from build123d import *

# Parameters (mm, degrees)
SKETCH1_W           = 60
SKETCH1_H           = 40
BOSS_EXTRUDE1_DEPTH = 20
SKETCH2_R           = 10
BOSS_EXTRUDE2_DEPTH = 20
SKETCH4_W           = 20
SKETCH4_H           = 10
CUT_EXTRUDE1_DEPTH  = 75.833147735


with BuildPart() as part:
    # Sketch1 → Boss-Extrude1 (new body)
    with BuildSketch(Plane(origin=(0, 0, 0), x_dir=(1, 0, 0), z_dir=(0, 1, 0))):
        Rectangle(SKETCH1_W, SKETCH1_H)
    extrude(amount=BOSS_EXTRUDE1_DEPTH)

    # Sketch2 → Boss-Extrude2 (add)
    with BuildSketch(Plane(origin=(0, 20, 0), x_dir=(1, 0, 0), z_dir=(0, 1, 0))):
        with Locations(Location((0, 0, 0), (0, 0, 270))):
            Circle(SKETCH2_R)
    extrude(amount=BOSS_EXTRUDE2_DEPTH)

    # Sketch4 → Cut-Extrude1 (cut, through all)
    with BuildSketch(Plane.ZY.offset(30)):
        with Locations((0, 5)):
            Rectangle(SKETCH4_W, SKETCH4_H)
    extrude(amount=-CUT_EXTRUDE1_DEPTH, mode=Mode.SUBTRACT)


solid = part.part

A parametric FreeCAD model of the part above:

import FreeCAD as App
import Part
import Sketcher
Q = App.Units.Quantity

doc = App.newDocument("Part")
body = doc.addObject("PartDesign::Body", "Body")

# Sketch on XZ plane
sketch1 = body.newObject("Sketcher::SketchObject", "Sketch")
sketch1.AttachmentSupport = (doc.getObject("XZ_Plane"), [""])
sketch1.MapMode = "FlatFace"
sketch1.addGeometry(Part.LineSegment(App.Vector(-30, -20, 0), App.Vector(-30, 20, 0)), False)
sketch1.addGeometry(Part.LineSegment(App.Vector(-30, 20, 0), App.Vector(30, 20, 0)), False)
sketch1.addGeometry(Part.LineSegment(App.Vector(30, 20, 0), App.Vector(30, -20, 0)), False)
sketch1.addGeometry(Part.LineSegment(App.Vector(30, -20, 0), App.Vector(-30, -20, 0)), False)
sketch1.addConstraint(Sketcher.Constraint("Coincident", 0, 2, 1, 1))
sketch1.addConstraint(Sketcher.Constraint("Coincident", 1, 2, 2, 1))
sketch1.addConstraint(Sketcher.Constraint("Coincident", 2, 2, 3, 1))
sketch1.addConstraint(Sketcher.Constraint("Coincident", 3, 2, 0, 1))
sketch1.addConstraint(Sketcher.Constraint("Vertical", 0))
sketch1.addConstraint(Sketcher.Constraint("Horizontal", 1))
sketch1.addConstraint(Sketcher.Constraint("Vertical", 2))
sketch1.addConstraint(Sketcher.Constraint("Horizontal", 3))
sketch1.addConstraint(Sketcher.Constraint("Symmetric", 0, 2, 2, 2, -1, 1))
sketch1.addConstraint(Sketcher.Constraint("DistanceX", 1, 1, 1, 2, Q("60 mm")))
sketch1.addConstraint(Sketcher.Constraint("DistanceY", 0, 1, 0, 2, Q("40 mm")))
pad1 = body.newObject("PartDesign::Pad", "Pad")
pad1.Profile = sketch1
pad1.Length = 20
pad1.Reversed = True

# Sketch on XZ plane
sketch2 = body.newObject("Sketcher::SketchObject", "Sketch001")
sketch2.AttachmentSupport = (doc.getObject("XZ_Plane"), [""])
sketch2.MapMode = "FlatFace"
sketch2.AttachmentOffset = App.Placement(App.Vector(0, 0, -20), App.Rotation())
sketch2.addGeometry(Part.Circle(App.Vector(0, 0, 0), App.Vector(0, 0, 1), 10), False)
sketch2.addConstraint(Sketcher.Constraint("Coincident", 0, 3, -1, 1))
sketch2.addConstraint(Sketcher.Constraint("Diameter", 0, Q("20 mm")))
pad2 = body.newObject("PartDesign::Pad", "Pad001")
pad2.Profile = sketch2
pad2.Length = 20
pad2.Reversed = True

# Sketch on YZ plane
sketch3 = body.newObject("Sketcher::SketchObject", "Sketch002")
sketch3.AttachmentSupport = (doc.getObject("YZ_Plane"), [""])
sketch3.MapMode = "FlatFace"
sketch3.AttachmentOffset = App.Placement(App.Vector(0, 0, -30), App.Rotation())
sketch3.addGeometry(Part.LineSegment(App.Vector(10, -10, 0), App.Vector(0, -10, 0)), False)
sketch3.addGeometry(Part.LineSegment(App.Vector(0, -10, 0), App.Vector(0, 10, 0)), False)
sketch3.addGeometry(Part.LineSegment(App.Vector(0, 10, 0), App.Vector(10, 10, 0)), False)
sketch3.addGeometry(Part.LineSegment(App.Vector(10, 10, 0), App.Vector(10, -10, 0)), False)
sketch3.addConstraint(Sketcher.Constraint("Coincident", 0, 2, 1, 1))
sketch3.addConstraint(Sketcher.Constraint("Coincident", 1, 2, 2, 1))
sketch3.addConstraint(Sketcher.Constraint("Coincident", 2, 2, 3, 1))
sketch3.addConstraint(Sketcher.Constraint("Coincident", 3, 2, 0, 1))
sketch3.addConstraint(Sketcher.Constraint("Horizontal", 0))
sketch3.addConstraint(Sketcher.Constraint("Vertical", 1))
sketch3.addConstraint(Sketcher.Constraint("Horizontal", 2))
sketch3.addConstraint(Sketcher.Constraint("Vertical", 3))
sketch3.addConstraint(Sketcher.Constraint("Symmetric", 0, 2, 1, 2, -1, 1))
sketch3.addConstraint(Sketcher.Constraint("DistanceX", 0, 2, 0, 1, Q("10 mm")))
sketch3.addConstraint(Sketcher.Constraint("DistanceY", 1, 1, 1, 2, Q("20 mm")))
pocket1 = body.newObject("PartDesign::Pocket", "Pocket")
pocket1.Profile = sketch3
pocket1.Type = "ThroughAll"
pocket1.Reversed = True

doc.recompute()
